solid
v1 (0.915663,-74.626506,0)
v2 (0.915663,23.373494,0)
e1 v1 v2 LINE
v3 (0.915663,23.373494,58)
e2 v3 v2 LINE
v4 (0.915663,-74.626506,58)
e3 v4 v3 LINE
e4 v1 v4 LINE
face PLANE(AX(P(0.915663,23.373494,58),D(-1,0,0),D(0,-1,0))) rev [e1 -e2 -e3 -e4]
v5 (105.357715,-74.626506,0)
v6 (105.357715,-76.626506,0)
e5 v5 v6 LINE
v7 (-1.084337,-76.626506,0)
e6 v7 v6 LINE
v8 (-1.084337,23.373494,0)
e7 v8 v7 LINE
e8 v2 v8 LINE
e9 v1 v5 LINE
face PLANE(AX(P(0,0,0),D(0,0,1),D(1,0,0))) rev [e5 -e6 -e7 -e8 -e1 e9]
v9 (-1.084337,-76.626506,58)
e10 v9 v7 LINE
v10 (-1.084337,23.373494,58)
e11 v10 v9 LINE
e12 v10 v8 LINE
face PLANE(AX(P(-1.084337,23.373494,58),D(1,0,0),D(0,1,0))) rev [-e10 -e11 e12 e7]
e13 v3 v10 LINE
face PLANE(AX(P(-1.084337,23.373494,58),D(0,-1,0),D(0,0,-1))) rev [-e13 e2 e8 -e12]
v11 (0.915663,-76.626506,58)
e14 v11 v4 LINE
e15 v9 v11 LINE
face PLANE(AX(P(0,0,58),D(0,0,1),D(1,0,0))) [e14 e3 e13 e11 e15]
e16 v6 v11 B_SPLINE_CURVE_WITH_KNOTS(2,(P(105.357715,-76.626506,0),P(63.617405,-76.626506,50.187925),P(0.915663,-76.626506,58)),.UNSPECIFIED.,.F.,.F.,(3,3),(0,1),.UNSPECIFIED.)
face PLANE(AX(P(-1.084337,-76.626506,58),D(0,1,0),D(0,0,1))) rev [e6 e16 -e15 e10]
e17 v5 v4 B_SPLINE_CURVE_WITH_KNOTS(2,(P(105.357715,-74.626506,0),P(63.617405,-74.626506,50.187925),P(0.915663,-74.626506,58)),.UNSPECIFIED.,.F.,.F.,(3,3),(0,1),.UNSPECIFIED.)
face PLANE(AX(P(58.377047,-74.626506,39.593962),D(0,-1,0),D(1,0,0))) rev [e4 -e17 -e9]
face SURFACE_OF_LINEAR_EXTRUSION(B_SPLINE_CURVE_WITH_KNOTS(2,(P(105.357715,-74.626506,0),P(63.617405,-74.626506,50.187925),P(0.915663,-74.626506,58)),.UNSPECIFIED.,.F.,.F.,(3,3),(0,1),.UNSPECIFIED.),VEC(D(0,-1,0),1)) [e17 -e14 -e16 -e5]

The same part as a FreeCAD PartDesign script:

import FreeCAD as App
import Part
import Sketcher

V = App.Vector


def add_polygon(sketch, points):
    """Adds a closed chain of lines whose ends are joined by coincident constraints."""
    first, n = sketch.GeometryCount, len(points)
    for a, b in zip(points, points[1:] + points[:1]):
        sketch.addGeometry(Part.LineSegment(App.Vector(*a, 0), App.Vector(*b, 0)), False)
    for i in range(n):
        sketch.addConstraint(Sketcher.Constraint("Coincident", first + i, 2, first + (i + 1) % n, 1))

doc = App.newDocument("Part")
body = doc.addObject("PartDesign::Body", "Body")

sketch1 = body.newObject("Sketcher::SketchObject", "Sketch")
sketch1.AttachmentSupport = (doc.getObject("XY_Plane"), [""])
sketch1.MapMode = "FlatFace"
add_polygon(sketch1, [(-1.1, 23.4), (-1.1, -76.6), (0.9, -76.6), (0.9, 23.4)])
sketch1.addConstraint([
    Sketcher.Constraint("Vertical", 0),
    Sketcher.Constraint("Horizontal", 1),
    Sketcher.Constraint("Vertical", 2),
    Sketcher.Constraint("Horizontal", 3),
    Sketcher.Constraint("DistanceX", 1, 1, 1, 2, 2.0),
    Sketcher.Constraint("DistanceY", 0, 2, 0, 1, 100.0),
    Sketcher.Constraint("DistanceX", 0, 2, -1, 1, 1.084337),
    Sketcher.Constraint("DistanceY", 0, 2, -1, 1, 76.626506),
])
pad1 = body.newObject("PartDesign::Pad", "Pad")
pad1.Profile = sketch1
pad1.Length = 58

sketch2 = body.newObject("Sketcher::SketchObject", "Sketch001")
sketch2.AttachmentSupport = (doc.getObject("XZ_Plane"), [""])
sketch2.MapMode = "FlatFace"
sketch2.AttachmentOffset = App.Placement(V(0, 0, 76.626506), App.Rotation())
sketch2.addGeometry([
    Part.LineSegment(V(0.915663, 58, 0), V(-1.084337, 58, 0)),
    Part.LineSegment(V(-1.084337, 58, 0), V(-1.084337, 0, 0)),
    Part.LineSegment(V(-1.084337, 0, 0), V(105.357715, 0, 0)),
    Part.BSplineCurve([V(0.915663, 58, 0), V(63.617405, 50.187925, 0), V(105.357715, 0, 0)], [3, 3], [0, 1], False, 2, [1, 1, 1], False),
], False)
sketch2.addConstraint([
    Sketcher.Constraint("Block", 3),
    Sketcher.Constraint("Coincident", 0, 2, 1, 1),
    Sketcher.Constraint("Coincident", 1, 2, 2, 1),
    Sketcher.Constraint("Coincident", 2, 2, 3, 2),
    Sketcher.Constraint("Coincident", 3, 1, 0, 1),
    Sketcher.Constraint("Horizontal", 0),
    Sketcher.Constraint("Vertical", 1),
    Sketcher.Constraint("Horizontal", 2),
    Sketcher.Constraint("DistanceX", 0, 2, 0, 1, 2.0),
])
pad2 = body.newObject("PartDesign::Pad", "Pad001")
pad2.Profile = sketch2
pad2.Length = 2
pad2.Reversed = True

doc.recompute()
